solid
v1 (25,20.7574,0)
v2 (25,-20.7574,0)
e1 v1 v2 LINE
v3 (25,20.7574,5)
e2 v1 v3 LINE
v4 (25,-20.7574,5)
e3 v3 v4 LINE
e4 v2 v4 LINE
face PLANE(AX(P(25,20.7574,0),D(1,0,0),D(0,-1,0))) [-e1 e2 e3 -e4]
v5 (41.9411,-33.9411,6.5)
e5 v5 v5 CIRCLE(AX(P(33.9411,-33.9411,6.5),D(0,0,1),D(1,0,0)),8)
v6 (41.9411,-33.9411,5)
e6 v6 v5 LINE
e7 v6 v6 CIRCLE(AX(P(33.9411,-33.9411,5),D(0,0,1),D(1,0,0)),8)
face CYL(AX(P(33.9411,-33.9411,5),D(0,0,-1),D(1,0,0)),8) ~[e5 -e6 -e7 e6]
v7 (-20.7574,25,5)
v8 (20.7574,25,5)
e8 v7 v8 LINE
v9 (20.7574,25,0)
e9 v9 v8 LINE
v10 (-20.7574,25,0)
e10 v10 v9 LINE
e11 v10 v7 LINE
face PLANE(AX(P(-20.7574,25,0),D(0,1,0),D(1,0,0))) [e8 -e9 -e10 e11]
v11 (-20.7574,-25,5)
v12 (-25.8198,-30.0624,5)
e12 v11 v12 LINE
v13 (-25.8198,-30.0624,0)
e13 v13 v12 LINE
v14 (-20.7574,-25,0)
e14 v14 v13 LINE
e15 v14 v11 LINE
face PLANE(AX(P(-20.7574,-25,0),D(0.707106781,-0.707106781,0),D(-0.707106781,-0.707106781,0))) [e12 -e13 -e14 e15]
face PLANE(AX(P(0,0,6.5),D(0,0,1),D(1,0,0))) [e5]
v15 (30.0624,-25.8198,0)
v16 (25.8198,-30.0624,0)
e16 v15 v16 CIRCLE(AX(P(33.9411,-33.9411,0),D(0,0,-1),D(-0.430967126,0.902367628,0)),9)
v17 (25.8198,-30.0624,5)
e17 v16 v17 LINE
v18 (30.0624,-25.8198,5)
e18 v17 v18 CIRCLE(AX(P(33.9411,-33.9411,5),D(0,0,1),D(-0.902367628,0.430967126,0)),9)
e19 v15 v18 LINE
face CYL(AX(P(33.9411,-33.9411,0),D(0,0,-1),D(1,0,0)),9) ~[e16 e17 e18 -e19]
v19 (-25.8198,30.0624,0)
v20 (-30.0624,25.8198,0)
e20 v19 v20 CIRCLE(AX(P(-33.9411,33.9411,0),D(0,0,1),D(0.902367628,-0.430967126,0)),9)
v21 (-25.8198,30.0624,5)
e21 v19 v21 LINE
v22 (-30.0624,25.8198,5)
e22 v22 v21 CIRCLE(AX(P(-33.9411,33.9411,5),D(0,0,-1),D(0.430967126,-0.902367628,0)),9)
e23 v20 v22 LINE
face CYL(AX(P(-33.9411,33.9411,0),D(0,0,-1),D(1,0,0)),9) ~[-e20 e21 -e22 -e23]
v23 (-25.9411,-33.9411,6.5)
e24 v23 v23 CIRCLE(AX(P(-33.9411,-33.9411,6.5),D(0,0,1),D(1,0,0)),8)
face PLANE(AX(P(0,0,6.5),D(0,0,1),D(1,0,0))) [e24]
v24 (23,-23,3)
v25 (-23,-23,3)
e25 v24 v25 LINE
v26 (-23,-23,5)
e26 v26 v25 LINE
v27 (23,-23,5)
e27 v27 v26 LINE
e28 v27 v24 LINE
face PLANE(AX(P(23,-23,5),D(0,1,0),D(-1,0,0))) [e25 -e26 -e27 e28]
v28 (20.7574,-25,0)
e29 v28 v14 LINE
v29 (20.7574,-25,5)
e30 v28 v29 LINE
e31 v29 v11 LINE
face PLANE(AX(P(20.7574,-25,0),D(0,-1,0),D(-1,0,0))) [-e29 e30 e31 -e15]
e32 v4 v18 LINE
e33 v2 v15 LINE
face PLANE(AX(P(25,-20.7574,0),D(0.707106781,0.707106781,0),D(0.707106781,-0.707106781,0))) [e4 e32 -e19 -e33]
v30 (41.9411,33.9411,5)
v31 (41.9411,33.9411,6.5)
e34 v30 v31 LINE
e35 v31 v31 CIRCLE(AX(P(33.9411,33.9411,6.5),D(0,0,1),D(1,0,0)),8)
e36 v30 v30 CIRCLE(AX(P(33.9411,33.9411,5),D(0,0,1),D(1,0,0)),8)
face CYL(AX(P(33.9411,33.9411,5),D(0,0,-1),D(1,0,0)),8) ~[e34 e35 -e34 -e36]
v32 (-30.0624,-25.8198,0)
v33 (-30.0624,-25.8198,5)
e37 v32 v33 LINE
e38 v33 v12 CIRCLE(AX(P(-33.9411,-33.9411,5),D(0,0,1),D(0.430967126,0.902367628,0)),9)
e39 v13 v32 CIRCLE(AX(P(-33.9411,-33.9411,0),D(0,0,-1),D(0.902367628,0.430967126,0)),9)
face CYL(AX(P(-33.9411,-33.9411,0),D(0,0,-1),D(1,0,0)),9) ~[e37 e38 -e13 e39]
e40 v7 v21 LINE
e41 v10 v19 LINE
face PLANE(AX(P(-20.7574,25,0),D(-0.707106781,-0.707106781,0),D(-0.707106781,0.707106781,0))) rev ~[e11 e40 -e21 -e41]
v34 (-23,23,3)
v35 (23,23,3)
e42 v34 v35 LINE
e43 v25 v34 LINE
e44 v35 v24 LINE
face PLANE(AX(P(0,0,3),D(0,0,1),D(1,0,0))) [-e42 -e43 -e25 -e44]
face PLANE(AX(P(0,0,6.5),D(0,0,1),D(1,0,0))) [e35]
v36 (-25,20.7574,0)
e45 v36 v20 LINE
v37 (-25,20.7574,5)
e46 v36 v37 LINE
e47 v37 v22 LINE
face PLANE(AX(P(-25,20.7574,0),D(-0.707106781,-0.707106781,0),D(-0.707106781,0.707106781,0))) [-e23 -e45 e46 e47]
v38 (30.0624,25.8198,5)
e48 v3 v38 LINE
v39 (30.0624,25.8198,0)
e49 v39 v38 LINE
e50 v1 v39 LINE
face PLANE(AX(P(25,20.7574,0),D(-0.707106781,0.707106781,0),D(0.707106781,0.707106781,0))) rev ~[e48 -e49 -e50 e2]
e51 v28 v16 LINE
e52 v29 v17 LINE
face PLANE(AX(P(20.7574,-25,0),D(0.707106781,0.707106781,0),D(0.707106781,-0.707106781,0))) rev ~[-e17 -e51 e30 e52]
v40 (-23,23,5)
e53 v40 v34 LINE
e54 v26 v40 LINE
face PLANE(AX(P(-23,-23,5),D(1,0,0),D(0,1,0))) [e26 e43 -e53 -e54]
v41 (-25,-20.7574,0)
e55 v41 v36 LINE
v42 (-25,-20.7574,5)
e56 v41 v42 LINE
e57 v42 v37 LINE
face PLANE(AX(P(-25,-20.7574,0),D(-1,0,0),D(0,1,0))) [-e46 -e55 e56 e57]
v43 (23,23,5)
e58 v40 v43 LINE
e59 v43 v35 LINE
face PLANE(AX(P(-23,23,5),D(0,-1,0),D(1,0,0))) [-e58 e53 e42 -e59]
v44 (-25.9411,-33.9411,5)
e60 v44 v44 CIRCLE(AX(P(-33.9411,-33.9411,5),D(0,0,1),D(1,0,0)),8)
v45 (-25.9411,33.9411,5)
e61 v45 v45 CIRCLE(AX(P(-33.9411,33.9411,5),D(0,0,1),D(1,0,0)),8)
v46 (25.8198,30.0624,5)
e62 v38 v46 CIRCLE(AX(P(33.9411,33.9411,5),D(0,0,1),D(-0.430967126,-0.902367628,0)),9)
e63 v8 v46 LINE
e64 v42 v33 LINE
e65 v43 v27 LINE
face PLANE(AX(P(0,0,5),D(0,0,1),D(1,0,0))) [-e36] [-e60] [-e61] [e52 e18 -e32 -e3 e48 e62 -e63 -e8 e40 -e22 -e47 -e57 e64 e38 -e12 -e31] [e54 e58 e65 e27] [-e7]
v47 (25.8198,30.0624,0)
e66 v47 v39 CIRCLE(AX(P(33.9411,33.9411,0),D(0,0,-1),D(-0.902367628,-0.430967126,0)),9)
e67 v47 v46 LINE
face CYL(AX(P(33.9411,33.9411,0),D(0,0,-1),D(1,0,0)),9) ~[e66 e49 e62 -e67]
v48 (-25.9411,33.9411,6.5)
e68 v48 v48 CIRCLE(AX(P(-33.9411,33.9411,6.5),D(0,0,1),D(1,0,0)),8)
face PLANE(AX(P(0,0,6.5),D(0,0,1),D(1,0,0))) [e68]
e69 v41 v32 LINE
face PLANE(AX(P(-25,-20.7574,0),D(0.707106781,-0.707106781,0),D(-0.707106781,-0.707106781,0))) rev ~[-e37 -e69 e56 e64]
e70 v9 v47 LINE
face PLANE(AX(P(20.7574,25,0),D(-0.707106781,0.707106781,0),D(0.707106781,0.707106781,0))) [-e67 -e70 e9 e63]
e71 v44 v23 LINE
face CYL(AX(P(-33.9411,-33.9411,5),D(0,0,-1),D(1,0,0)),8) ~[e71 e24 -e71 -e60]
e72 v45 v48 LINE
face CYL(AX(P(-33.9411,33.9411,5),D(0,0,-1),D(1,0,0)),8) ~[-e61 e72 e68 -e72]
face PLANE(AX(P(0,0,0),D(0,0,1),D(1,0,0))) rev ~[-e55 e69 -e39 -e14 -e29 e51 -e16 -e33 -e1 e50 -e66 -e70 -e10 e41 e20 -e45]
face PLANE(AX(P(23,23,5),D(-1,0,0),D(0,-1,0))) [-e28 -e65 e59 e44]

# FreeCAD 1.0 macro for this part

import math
import FreeCAD as App
import Part
import Sketcher

V = App.Vector
Q = App.Units.Quantity


def add_polygon(sketch, points):
    """Adds a closed chain of lines whose ends are joined by coincident constraints."""
    first, n = sketch.GeometryCount, len(points)
    for a, b in zip(points, points[1:] + points[:1]):
        sketch.addGeometry(Part.LineSegment(App.Vector(*a, 0), App.Vector(*b, 0)), False)
    for i in range(n):
        sketch.addConstraint(Sketcher.Constraint("Coincident", first + i, 2, first + (i + 1) % n, 1))

doc = App.newDocument("Part")
body = doc.addObject("PartDesign::Body", "Body")

# Sketch on XY plane
sketch1 = body.newObject("Sketcher::SketchObject", "Sketch")
sketch1.AttachmentSupport = (doc.getObject("XY_Plane"), [""])
sketch1.MapMode = "FlatFace"
sketch1.addGeometry([
    Part.LineSegment(V(-20.7574, 25, 0), V(-25.8198, 30.0624, 0)),  # 0
    Part.ArcOfCircle(Part.Circle(V(-33.9411, 33.9411, 0), V(0, 0, 1), 9), math.radians(-25.528952), math.radians(295.528952)),  # 1
    Part.LineSegment(V(-30.0624, 25.8198, 0), V(-25, 20.7574, 0)),  # 2
    Part.LineSegment(V(-25, 20.7574, 0), V(-25, -20.7574, 0)),  # 3
    Part.LineSegment(V(-25, -20.7574, 0), V(-30.0624, -25.8198, 0)),  # 4
    Part.ArcOfCircle(Part.Circle(V(-33.9411, -33.9411, 0), V(0, 0, 1), 9), math.radians(64.471048), math.radians(385.528952)),  # 5
    Part.LineSegment(V(-25.8198, -30.0624, 0), V(-20.7574, -25, 0)),  # 6
    Part.LineSegment(V(-20.7574, -25, 0), V(20.7574, -25, 0)),  # 7
    Part.LineSegment(V(20.7574, -25, 0), V(25.8198, -30.0624, 0)),  # 8
    Part.ArcOfCircle(Part.Circle(V(33.9411, -33.9411, 0), V(0, 0, 1), 9), math.radians(154.471048), math.radians(475.528952)),  # 9
    Part.LineSegment(V(30.0624, -25.8198, 0), V(25, -20.7574, 0)),  # 10
    Part.LineSegment(V(25, -20.7574, 0), V(25, 20.7574, 0)),  # 11
    Part.LineSegment(V(25, 20.7574, 0), V(30.0624, 25.8198, 0)),  # 12
    Part.ArcOfCircle(Part.Circle(V(33.9411, 33.9411, 0), V(0, 0, 1), 9), math.radians(-115.528952), math.radians(205.528952)),  # 13
    Part.LineSegment(V(25.8198, 30.0624, 0), V(20.7574, 25, 0)),  # 14
    Part.LineSegment(V(20.7574, 25, 0), V(-20.7574, 25, 0)),  # 15
], False)
sketch1.addConstraint([
    Sketcher.Constraint("Coincident", 0, 2, 1, 1),
    Sketcher.Constraint("Coincident", 1, 2, 2, 1),
    Sketcher.Constraint("Coincident", 2, 2, 3, 1),
    Sketcher.Constraint("Coincident", 3, 2, 4, 1),
    Sketcher.Constraint("Coincident", 4, 2, 5, 1),
    Sketcher.Constraint("Coincident", 5, 2, 6, 1),
    Sketcher.Constraint("Coincident", 6, 2, 7, 1),
    Sketcher.Constraint("Coincident", 7, 2, 8, 1),
    Sketcher.Constraint("Coincident", 8, 2, 9, 1),
    Sketcher.Constraint("Coincident", 9, 2, 10, 1),
    Sketcher.Constraint("Coincident", 10, 2, 11, 1),
    Sketcher.Constraint("Coincident", 11, 2, 12, 1),
    Sketcher.Constraint("Coincident", 12, 2, 13, 1),
    Sketcher.Constraint("Coincident", 13, 2, 14, 1),
    Sketcher.Constraint("Coincident", 14, 2, 15, 1),
    Sketcher.Constraint("Coincident", 15, 2, 0, 1),
    Sketcher.Constraint("Vertical", 3),
    Sketcher.Constraint("Horizontal", 7),
    Sketcher.Constraint("Vertical", 11),
    Sketcher.Constraint("Horizontal", 15),
    Sketcher.Constraint("Equal", 1, 5),
    Sketcher.Constraint("Equal", 5, 9),
    Sketcher.Constraint("Equal", 9, 13),
    Sketcher.Constraint("Symmetric", 1, 3, 9, 3, -1, 1),
    Sketcher.Constraint("Symmetric", 5, 3, 13, 3, -1, 1),
    Sketcher.Constraint("Symmetric", 2, 2, 10, 2, -1, 1),
    Sketcher.Constraint("Symmetric", 6, 2, 14, 2, -1, 1),
    Sketcher.Constraint("Symmetric", 5, 3, 9, 3, -2),
    Sketcher.Constraint("Parallel", 0, 2),
    Sketcher.Constraint("Perpendicular", 2, 4),
    Sketcher.Constraint("Parallel", 4, 6),
    Sketcher.Constraint("Perpendicular", 6, 8),
    Sketcher.Constraint("Parallel", 8, 10),
    Sketcher.Constraint("Perpendicular", 10, 12),
    Sketcher.Constraint("Parallel", 12, 14),
    Sketcher.Constraint("Horizontal", 5, 2, 8, 2),
    Sketcher.Constraint("Horizontal", 4, 2, 9, 2),
    Sketcher.Constraint("Horizontal", 3, 2, 10, 2),
    Sketcher.Constraint("Horizontal", 2, 2, 11, 2),
    Sketcher.Constraint("Horizontal", 0, 2, 13, 2),
    Sketcher.Constraint("Equal", 15, 3),
    Sketcher.Constraint("Equal", 0, 2),
    Sketcher.Constraint("Radius", 1, Q("9 mm")),
    Sketcher.Constraint("DistanceX", 2, 2, 11, 2, Q("50 mm")),
    Sketcher.Constraint("DistanceY", 6, 2, -1, 1, Q("25 mm")),
    Sketcher.Constraint("DistanceX", 7, 1, 7, 2, Q("41.5148 mm")),
    Sketcher.Constraint("DistanceX", 1, 3, -1, 1, Q("33.941 mm")),
])
pad1 = body.newObject("PartDesign::Pad", "Pad")
pad1.Profile = sketch1
pad1.Length = 5

# Sketch on XY plane
sketch2 = body.newObject("Sketcher::SketchObject", "Sketch001")
sketch2.AttachmentSupport = (doc.getObject("XY_Plane"), [""])
sketch2.MapMode = "FlatFace"
sketch2.AttachmentOffset = App.Placement(V(0, 0, 5), App.Rotation())
add_polygon(sketch2, [(23, 23), (-23, 23), (-23, -23), (23, -23)])  # lines 0-3
sketch2.addConstraint([
    Sketcher.Constraint("Horizontal", 0),
    Sketcher.Constraint("Vertical", 1),
    Sketcher.Constraint("Horizontal", 2),
    Sketcher.Constraint("Vertical", 3),
    Sketcher.Constraint("Symmetric", 0, 2, 2, 2, -1, 1),
    Sketcher.Constraint("Equal", 2, 1),
    Sketcher.Constraint("DistanceX", 0, 2, 0, 1, Q("46 mm")),
])
pocket1 = body.newObject("PartDesign::Pocket", "Pocket")
pocket1.Profile = sketch2
pocket1.Length = 2

# Sketch on XY plane
sketch3 = body.newObject("Sketcher::SketchObject", "Sketch002")
sketch3.AttachmentSupport = (doc.getObject("XY_Plane"), [""])
sketch3.MapMode = "FlatFace"
sketch3.AttachmentOffset = App.Placement(V(0, 0, 5), App.Rotation())
sketch3.addGeometry([
    Part.Circle(V(-33.9411, 33.9411, 0), V(0, 0, 1), 8),
    Part.Circle(V(-33.9411, -33.9411, 0), V(0, 0, 1), 8),
    Part.Circle(V(33.9411, -33.9411, 0), V(0, 0, 1), 8),
    Part.Circle(V(33.9411, 33.9411, 0), V(0, 0, 1), 8),
], False)
sketch3.addConstraint([
    Sketcher.Constraint("Equal", 0, 1),
    Sketcher.Constraint("Equal", 1, 2),
    Sketcher.Constraint("Equal", 2, 3),
    Sketcher.Constraint("Symmetric", 0, 3, 2, 3, -1, 1),
    Sketcher.Constraint("Symmetric", 1, 3, 3, 3, -1, 1),
    Sketcher.Constraint("Symmetric", 1, 3, 2, 3, -2),
    Sketcher.Constraint("Diameter", 0, Q("16 mm")),
    Sketcher.Constraint("DistanceX", 0, 3, -1, 1, Q("33.941 mm")),
    Sketcher.Constraint("DistanceY", -1, 1, 0, 3, Q("33.941 mm")),
])
pad2 = body.newObject("PartDesign::Pad", "Pad001")
pad2.Profile = sketch3
pad2.Length = 1.5

doc.recompute()
